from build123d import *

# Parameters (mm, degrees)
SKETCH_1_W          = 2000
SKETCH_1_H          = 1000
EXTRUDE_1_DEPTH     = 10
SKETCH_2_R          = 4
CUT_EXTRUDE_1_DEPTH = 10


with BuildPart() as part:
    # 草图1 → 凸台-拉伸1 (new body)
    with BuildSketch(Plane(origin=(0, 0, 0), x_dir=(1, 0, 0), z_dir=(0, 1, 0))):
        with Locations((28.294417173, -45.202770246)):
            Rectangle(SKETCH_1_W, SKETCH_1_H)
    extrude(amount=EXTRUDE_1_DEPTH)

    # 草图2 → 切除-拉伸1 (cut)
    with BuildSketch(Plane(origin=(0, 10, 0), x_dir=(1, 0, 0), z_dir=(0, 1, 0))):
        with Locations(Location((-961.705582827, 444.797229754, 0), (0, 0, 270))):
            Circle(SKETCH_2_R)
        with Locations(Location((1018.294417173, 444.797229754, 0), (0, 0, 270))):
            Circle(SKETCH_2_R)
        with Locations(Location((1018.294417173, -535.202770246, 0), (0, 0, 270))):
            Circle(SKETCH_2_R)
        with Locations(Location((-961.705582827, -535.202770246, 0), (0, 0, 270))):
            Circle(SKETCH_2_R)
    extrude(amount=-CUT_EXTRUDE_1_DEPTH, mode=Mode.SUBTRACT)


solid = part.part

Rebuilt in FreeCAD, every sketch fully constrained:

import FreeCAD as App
import Part
import Sketcher
from FreeCAD import Vector


def add_polygon(sketch, points):
    """Adds a closed chain of lines whose ends are joined by coincident constraints."""
    first, n = sketch.GeometryCount, len(points)
    for a, b in zip(points, points[1:] + points[:1]):
        sketch.addGeometry(Part.LineSegment(App.Vector(*a, 0), App.Vector(*b, 0)), False)
    for i in range(n):
        sketch.addConstraint(Sketcher.Constraint("Coincident", first + i, 2, first + (i + 1) % n, 1))

doc = App.newDocument("Part")
body = doc.addObject("PartDesign::Body", "Body")

# Sketch on XZ plane
sketch1 = doc.addObject("Sketcher::SketchObject", "Sketch")
body.addObject(sketch1)
sketch1.AttachmentSupport = (doc.XZ_Plane, [""])
sketch1.MapMode = "FlatFace"
add_polygon(sketch1, [(-971.705583, -454.79723), (-971.705583, 545.20277), (1028.294417, 545.20277), (1028.294417, -454.79723)])  # lines 0-3
sketch1.addConstraint(Sketcher.Constraint("Vertical", 0))
sketch1.addConstraint(Sketcher.Constraint("Horizontal", 1))
sketch1.addConstraint(Sketcher.Constraint("Vertical", 2))
sketch1.addConstraint(Sketcher.Constraint("Horizontal", 3))
sketch1.addConstraint(Sketcher.Constraint("DistanceX", 1, 1, 1, 2, 2000.0))
sketch1.addConstraint(Sketcher.Constraint("DistanceY", 0, 1, 0, 2, 1000.0))
sketch1.addConstraint(Sketcher.Constraint("DistanceY", -1, 1, 0, 2, 545.20277))
sketch1.addConstraint(Sketcher.Constraint("DistanceX", 0, 2, -1, 1, 971.705583))
pad1 = doc.addObject("PartDesign::Pad", "Pad")
body.addObject(pad1)
pad1.Profile = sketch1
pad1.Length = 10
pad1.Reversed = True

# Sketch on XZ plane
sketch2 = doc.addObject("Sketcher::SketchObject", "Sketch001")
body.addObject(sketch2)
sketch2.AttachmentSupport = (doc.XZ_Plane, [""])
sketch2.MapMode = "FlatFace"
sketch2.AttachmentOffset = App.Placement(Vector(0, 0, -10), App.Rotation())
sketch2.addGeometry(Part.Circle(Vector(-961.705583, -444.79723, 0), Vector(0, 0, 1), 4), False)
sketch2.addGeometry(Part.Circle(Vector(1018.294417, -444.79723, 0), Vector(0, 0, 1), 4), False)
sketch2.addGeometry(Part.Circle(Vector(1018.294417, 535.20277, 0), Vector(0, 0, 1), 4), False)
sketch2.addGeometry(Part.Circle(Vector(-961.705583, 535.20277, 0), Vector(0, 0, 1), 4), False)
sketch2.addConstraint(Sketcher.Constraint("Equal", 0, 1))
sketch2.addConstraint(Sketcher.Constraint("Equal", 1, 2))
sketch2.addConstraint(Sketcher.Constraint("Equal", 2, 3))
sketch2.addConstraint(Sketcher.Constraint("Horizontal", 0, 3, 1, 3))
sketch2.addConstraint(Sketcher.Constraint("Horizontal", 2, 3, 3, 3))
sketch2.addConstraint(Sketcher.Constraint("Vertical", 1, 3, 2, 3))
sketch2.addConstraint(Sketcher.Constraint("Vertical", 0, 3, 3, 3))
sketch2.addConstraint(Sketcher.Constraint("Diameter", 0, 8.0))
sketch2.addConstraint(Sketcher.Constraint("DistanceX", 0, 3, 1, 3, 1980.0))
sketch2.addConstraint(Sketcher.Constraint("DistanceY", 1, 3, 2, 3, 980.0))
sketch2.addConstraint(Sketcher.Constraint("DistanceY", 0, 3, -1, 1, 444.79723))
sketch2.addConstraint(Sketcher.Constraint("DistanceX", 0, 3, -1, 1, 961.705583))
pocket1 = doc.addObject("PartDesign::Pocket", "Pocket")
body.addObject(pocket1)
pocket1.Profile = sketch2
pocket1.Length = 10
pocket1.Reversed = True

doc.recompute()
